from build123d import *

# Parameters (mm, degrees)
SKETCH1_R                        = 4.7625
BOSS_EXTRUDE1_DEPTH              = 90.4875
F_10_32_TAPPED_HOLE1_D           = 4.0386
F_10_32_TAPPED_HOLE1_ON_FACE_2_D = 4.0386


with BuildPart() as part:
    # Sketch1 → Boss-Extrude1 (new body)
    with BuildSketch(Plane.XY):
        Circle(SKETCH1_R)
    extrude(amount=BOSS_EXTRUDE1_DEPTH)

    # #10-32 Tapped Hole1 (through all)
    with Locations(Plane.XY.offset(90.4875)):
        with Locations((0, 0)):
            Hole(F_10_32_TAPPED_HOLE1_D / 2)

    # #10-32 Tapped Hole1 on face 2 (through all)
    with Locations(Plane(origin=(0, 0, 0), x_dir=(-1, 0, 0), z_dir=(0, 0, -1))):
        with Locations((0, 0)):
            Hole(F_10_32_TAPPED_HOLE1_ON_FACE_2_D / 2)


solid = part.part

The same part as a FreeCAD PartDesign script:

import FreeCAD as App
import Part
import Sketcher
Q = App.Units.Quantity

doc = App.newDocument("Part")
body = doc.addObject("PartDesign::Body", "Body")

# Sketch on XY plane
sketch1 = doc.addObject("Sketcher::SketchObject", "Sketch")
body.addObject(sketch1)
sketch1.AttachmentSupport = (doc.XY_Plane, [""])
sketch1.MapMode = "FlatFace"
sketch1.addGeometry(Part.Circle(App.Vector(0, 0, 0), App.Vector(0, 0, 1), 4.8), False)
sketch1.addConstraint(Sketcher.Constraint("Coincident", 0, 3, -1, 1))
sketch1.addConstraint(Sketcher.Constraint("Diameter", 0, Q("0.375 in")))
pad1 = doc.addObject("PartDesign::Pad", "Pad")
body.addObject(pad1)
pad1.Profile = sketch1
pad1.Length = Q("3.5625 in")

# Sketch on XY plane
sketch2 = doc.addObject("Sketcher::SketchObject", "Sketch001")
body.addObject(sketch2)
sketch2.AttachmentSupport = (doc.XY_Plane, [""])
sketch2.MapMode = "FlatFace"
sketch2.AttachmentOffset = App.Placement(App.Vector(0, 0, 3.5625 * 25.4), App.Rotation())
sketch2.addGeometry(Part.Circle(App.Vector(0, 0, 0), App.Vector(0, 0, 1), 2), False)
sketch2.addConstraint(Sketcher.Constraint("Coincident", 0, 3, -1, 1))
sketch2.addConstraint(Sketcher.Constraint("Diameter", 0, Q("0.159 in")))
doc.recompute()
hole = doc.addObject("PartDesign::Hole", "Hole")
body.addObject(hole)
hole.Profile = sketch2
hole.ThreadType = "None"
hole.Diameter = Q("0.159 in")
hole.DepthType = "ThroughAll"

# Sketch on XY plane
sketch3 = doc.addObject("Sketcher::SketchObject", "Sketch002")
body.addObject(sketch3)
sketch3.AttachmentSupport = (doc.XY_Plane, [""])
sketch3.MapMode = "FlatFace"
sketch3.addGeometry(Part.Circle(App.Vector(0, 0, 0), App.Vector(0, 0, 1), 2), False)
sketch3.addConstraint(Sketcher.Constraint("Coincident", 0, 3, -1, 1))
sketch3.addConstraint(Sketcher.Constraint("Diameter", 0, Q("0.159 in")))
doc.recompute()
hole2 = doc.addObject("PartDesign::Hole", "Hole001")
body.addObject(hole2)
hole2.Profile = sketch3
hole2.ThreadType = "None"
hole2.Diameter = Q("0.159 in")
hole2.DepthType = "ThroughAll"
hole2.Reversed = True

doc.recompute()
